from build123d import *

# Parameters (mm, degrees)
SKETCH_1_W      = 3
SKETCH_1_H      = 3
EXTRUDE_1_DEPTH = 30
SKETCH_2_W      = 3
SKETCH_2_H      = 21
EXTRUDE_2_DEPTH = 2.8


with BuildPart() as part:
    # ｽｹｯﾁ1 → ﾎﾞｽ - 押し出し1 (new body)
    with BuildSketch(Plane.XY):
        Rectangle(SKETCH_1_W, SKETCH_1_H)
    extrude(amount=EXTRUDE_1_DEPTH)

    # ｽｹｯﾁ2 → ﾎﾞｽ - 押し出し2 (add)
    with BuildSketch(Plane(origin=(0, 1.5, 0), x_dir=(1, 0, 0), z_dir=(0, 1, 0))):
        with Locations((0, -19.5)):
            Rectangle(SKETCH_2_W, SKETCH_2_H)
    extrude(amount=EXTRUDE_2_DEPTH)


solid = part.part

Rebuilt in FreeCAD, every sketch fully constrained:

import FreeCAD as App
import Part
import Sketcher


def add_polygon(sketch, points):
    """Adds a closed chain of lines whose ends are joined by coincident constraints."""
    first, n = sketch.GeometryCount, len(points)
    for a, b in zip(points, points[1:] + points[:1]):
        sketch.addGeometry(Part.LineSegment(App.Vector(*a, 0), App.Vector(*b, 0)), False)
    for i in range(n):
        sketch.addConstraint(Sketcher.Constraint("Coincident", first + i, 2, first + (i + 1) % n, 1))

doc = App.newDocument("Part")
body = doc.addObject("PartDesign::Body", "Body")

# Sketch on XY plane
sketch1 = body.newObject("Sketcher::SketchObject", "Sketch")
sketch1.AttachmentSupport = (doc.getObject("XY_Plane"), [""])
sketch1.MapMode = "FlatFace"
add_polygon(sketch1, [(-1.5, 1.5), (-1.5, -1.5), (1.5, -1.5), (1.5, 1.5)])  # lines 0-3
sketch1.addConstraint([
    Sketcher.Constraint("Vertical", 0),
    Sketcher.Constraint("Horizontal", 1),
    Sketcher.Constraint("Vertical", 2),
    Sketcher.Constraint("Horizontal", 3),
    Sketcher.Constraint("Symmetric", 0, 2, 2, 2, -1, 1),
    Sketcher.Constraint("Equal", 3, 0),
    Sketcher.Constraint("DistanceX", 1, 1, 1, 2, 3.0),
])
pad1 = body.newObject("PartDesign::Pad", "Pad")
pad1.Profile = sketch1
pad1.Length = 30

# Sketch on XZ plane
sketch2 = body.newObject("Sketcher::SketchObject", "Sketch001")
sketch2.AttachmentSupport = (doc.getObject("XZ_Plane"), [""])
sketch2.MapMode = "FlatFace"
sketch2.AttachmentOffset = App.Placement(App.Vector(0, 0, -1.5), App.Rotation())
add_polygon(sketch2, [(-1.5, 9), (-1.5, 30), (1.5, 30), (1.5, 9)])  # lines 0-3
sketch2.addConstraint([
    Sketcher.Constraint("Vertical", 0),
    Sketcher.Constraint("Horizontal", 1),
    Sketcher.Constraint("Vertical", 2),
    Sketcher.Constraint("Horizontal", 3),
    Sketcher.Constraint("DistanceX", 1, 1, 1, 2, 3.0),
    Sketcher.Constraint("DistanceY", 0, 1, 0, 2, 21.0),
    Sketcher.Constraint("DistanceY", -1, 1, 0, 2, 30.0),
    Sketcher.Constraint("DistanceX", 0, 2, -1, 1, 1.5),
])
pad2 = body.newObject("PartDesign::Pad", "Pad001")
pad2.Profile = sketch2
pad2.Length = 2.8
pad2.Reversed = True

doc.recompute()
